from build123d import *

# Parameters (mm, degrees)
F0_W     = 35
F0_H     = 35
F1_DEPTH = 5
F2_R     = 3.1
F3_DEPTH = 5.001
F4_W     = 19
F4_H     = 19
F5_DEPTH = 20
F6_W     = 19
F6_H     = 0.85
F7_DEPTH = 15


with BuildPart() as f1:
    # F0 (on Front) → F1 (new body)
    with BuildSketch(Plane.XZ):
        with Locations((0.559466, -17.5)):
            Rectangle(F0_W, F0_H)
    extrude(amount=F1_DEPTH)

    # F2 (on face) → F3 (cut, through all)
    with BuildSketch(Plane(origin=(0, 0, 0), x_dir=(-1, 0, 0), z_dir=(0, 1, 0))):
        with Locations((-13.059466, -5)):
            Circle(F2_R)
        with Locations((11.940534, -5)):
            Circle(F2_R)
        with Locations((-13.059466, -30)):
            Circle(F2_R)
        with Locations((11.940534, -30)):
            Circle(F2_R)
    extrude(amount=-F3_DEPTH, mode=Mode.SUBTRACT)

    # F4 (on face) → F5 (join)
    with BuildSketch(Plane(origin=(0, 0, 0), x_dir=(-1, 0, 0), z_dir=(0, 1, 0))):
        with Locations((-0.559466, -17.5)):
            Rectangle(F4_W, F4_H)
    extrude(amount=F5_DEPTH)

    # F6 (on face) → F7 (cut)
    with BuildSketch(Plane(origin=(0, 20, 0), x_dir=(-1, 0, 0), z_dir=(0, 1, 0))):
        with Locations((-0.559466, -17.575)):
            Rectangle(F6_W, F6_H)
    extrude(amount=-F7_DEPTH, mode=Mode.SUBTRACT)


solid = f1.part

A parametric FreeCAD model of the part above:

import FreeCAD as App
import Part
import Sketcher

V = App.Vector
Q = App.Units.Quantity


def add_polygon(sketch, points):
    """Adds a closed chain of lines whose ends are joined by coincident constraints."""
    first, n = sketch.GeometryCount, len(points)
    for a, b in zip(points, points[1:] + points[:1]):
        sketch.addGeometry(Part.LineSegment(App.Vector(*a, 0), App.Vector(*b, 0)), False)
    for i in range(n):
        sketch.addConstraint(Sketcher.Constraint("Coincident", first + i, 2, first + (i + 1) % n, 1))

doc = App.newDocument("Part")
body = doc.addObject("PartDesign::Body", "Body")

# Sketch on XZ plane
sketch1 = body.newObject("Sketcher::SketchObject", "Sketch")
sketch1.AttachmentSupport = (doc.getObject("XZ_Plane"), [""])
sketch1.MapMode = "FlatFace"
add_polygon(sketch1, [(-17, 0), (-17, -35), (18, -35), (18, 0)])  # lines 0-3
sketch1.addConstraint([
    Sketcher.Constraint("Vertical", 0),
    Sketcher.Constraint("Horizontal", 1),
    Sketcher.Constraint("Vertical", 2),
    Sketcher.Constraint("Horizontal", 3),
    Sketcher.Constraint("PointOnObject", 2, 2, -1),
    Sketcher.Constraint("Equal", 3, 0),
    Sketcher.Constraint("DistanceX", 1, 1, 1, 2, Q("35 mm")),
    Sketcher.Constraint("DistanceX", 0, 2, -1, 1, Q("16.940534 mm")),
])
pad1 = body.newObject("PartDesign::Pad", "Pad")
pad1.Profile = sketch1
pad1.Length = 5

# Sketch on XZ plane
sketch2 = body.newObject("Sketcher::SketchObject", "Sketch001")
sketch2.AttachmentSupport = (doc.getObject("XZ_Plane"), [""])
sketch2.MapMode = "FlatFace"
sketch2.addGeometry([
    Part.Circle(V(13.1, -5, 0), V(0, 0, 1), 3.1),
    Part.Circle(V(-11.9, -5, 0), V(0, 0, 1), 3.1),
    Part.Circle(V(13.1, -30, 0), V(0, 0, 1), 3.1),
    Part.Circle(V(-11.9, -30, 0), V(0, 0, 1), 3.1),
], False)
sketch2.addConstraint([
    Sketcher.Constraint("Equal", 0, 1),
    Sketcher.Constraint("Equal", 1, 2),
    Sketcher.Constraint("Equal", 2, 3),
    Sketcher.Constraint("Horizontal", 0, 3, 1, 3),
    Sketcher.Constraint("Horizontal", 2, 3, 3, 3),
    Sketcher.Constraint("Vertical", 0, 3, 2, 3),
    Sketcher.Constraint("Vertical", 1, 3, 3, 3),
    Sketcher.Constraint("Diameter", 0, Q("6.2 mm")),
    Sketcher.Constraint("DistanceY", 0, 3, -1, 1, Q("5 mm")),
    Sketcher.Constraint("DistanceY", 2, 3, -1, 1, Q("30 mm")),
    Sketcher.Constraint("DistanceX", 1, 3, 0, 3, Q("25 mm")),
    Sketcher.Constraint("DistanceX", -1, 1, 0, 3, Q("13.059466 mm")),
])
pocket1 = body.newObject("PartDesign::Pocket", "Pocket")
pocket1.Profile = sketch2
pocket1.Type = "ThroughAll"
pocket1.Reversed = True

# Sketch on XZ plane
sketch3 = body.newObject("Sketcher::SketchObject", "Sketch002")
sketch3.AttachmentSupport = (doc.getObject("XZ_Plane"), [""])
sketch3.MapMode = "FlatFace"
add_polygon(sketch3, [(10, -8), (10, -27), (-9, -27), (-9, -8)])  # lines 0-3
sketch3.addConstraint([
    Sketcher.Constraint("Vertical", 0),
    Sketcher.Constraint("Horizontal", 1),
    Sketcher.Constraint("Vertical", 2),
    Sketcher.Constraint("Horizontal", 3),
    Sketcher.Constraint("Equal", 3, 0),
    Sketcher.Constraint("DistanceX", 1, 2, 1, 1, Q("19 mm")),
    Sketcher.Constraint("DistanceY", 0, 2, -1, 1, Q("27 mm")),
    Sketcher.Constraint("DistanceX", -1, 1, 0, 2, Q("10.059466 mm")),
])
pad2 = body.newObject("PartDesign::Pad", "Pad001")
pad2.Profile = sketch3
pad2.Length = 20
pad2.Reversed = True

# Sketch on XZ plane
sketch4 = body.newObject("Sketcher::SketchObject", "Sketch003")
sketch4.AttachmentSupport = (doc.getObject("XZ_Plane"), [""])
sketch4.MapMode = "FlatFace"
sketch4.AttachmentOffset = App.Placement(V(0, 0, -20), App.Rotation())
add_polygon(sketch4, [(10.1, -17.1), (10.1, -18), (-8.9, -18), (-8.9, -17.1)])  # lines 0-3
sketch4.addConstraint([
    Sketcher.Constraint("Vertical", 0),
    Sketcher.Constraint("Horizontal", 1),
    Sketcher.Constraint("Vertical", 2),
    Sketcher.Constraint("Horizontal", 3),
    Sketcher.Constraint("DistanceX", 1, 2, 1, 1, Q("19 mm")),
    Sketcher.Constraint("DistanceY", 0, 2, -1, 1, Q("18 mm")),
    Sketcher.Constraint("DistanceY", 0, 2, 0, 1, Q("0.85 mm")),
    Sketcher.Constraint("DistanceX", -1, 1, 0, 2, Q("10.059466 mm")),
])
pocket2 = body.newObject("PartDesign::Pocket", "Pocket001")
pocket2.Profile = sketch4
pocket2.Length = 15
pocket2.Reversed = True

doc.recompute()
